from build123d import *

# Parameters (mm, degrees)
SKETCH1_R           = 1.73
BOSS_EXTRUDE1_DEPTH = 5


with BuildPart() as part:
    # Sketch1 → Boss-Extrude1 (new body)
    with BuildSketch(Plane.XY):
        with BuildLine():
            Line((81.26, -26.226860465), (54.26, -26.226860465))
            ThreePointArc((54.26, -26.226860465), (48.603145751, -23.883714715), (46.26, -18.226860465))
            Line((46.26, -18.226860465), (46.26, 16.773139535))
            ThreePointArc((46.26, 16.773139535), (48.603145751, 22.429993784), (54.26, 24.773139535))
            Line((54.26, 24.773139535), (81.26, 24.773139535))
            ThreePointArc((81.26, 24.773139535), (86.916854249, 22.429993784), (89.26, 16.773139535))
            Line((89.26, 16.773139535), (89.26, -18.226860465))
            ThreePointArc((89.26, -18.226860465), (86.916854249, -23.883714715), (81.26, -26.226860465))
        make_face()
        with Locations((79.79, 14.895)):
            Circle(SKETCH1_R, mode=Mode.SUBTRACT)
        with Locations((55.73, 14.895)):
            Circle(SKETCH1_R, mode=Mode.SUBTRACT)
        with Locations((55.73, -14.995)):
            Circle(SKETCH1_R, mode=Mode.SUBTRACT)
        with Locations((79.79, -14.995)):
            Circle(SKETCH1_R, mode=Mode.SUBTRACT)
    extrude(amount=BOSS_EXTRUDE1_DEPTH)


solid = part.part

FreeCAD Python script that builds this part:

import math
import FreeCAD as App
import Part
import Sketcher
Q = App.Units.Quantity

doc = App.newDocument("Part")
body = doc.addObject("PartDesign::Body", "Body")

# Sketch on XY plane
sketch1 = doc.addObject("Sketcher::SketchObject", "Sketch")
body.addObject(sketch1)
sketch1.AttachmentSupport = (doc.XY_Plane, [""])
sketch1.MapMode = "FlatFace"
sketch1.addGeometry([
    Part.LineSegment(App.Vector(54.3, -26.2, 0), App.Vector(81.3, -26.2, 0)),  # 0
    Part.ArcOfCircle(Part.Circle(App.Vector(81.3, -18.2, 0), App.Vector(0, 0, 1), 8), math.radians(-90), math.radians(0)),  # 1
    Part.LineSegment(App.Vector(89.3, -18.2, 0), App.Vector(89.3, 16.8, 0)),  # 2
    Part.ArcOfCircle(Part.Circle(App.Vector(81.3, 16.8, 0), App.Vector(0, 0, 1), 8), math.radians(0), math.radians(90)),  # 3
    Part.LineSegment(App.Vector(81.3, 24.8, 0), App.Vector(54.3, 24.8, 0)),  # 4
    Part.ArcOfCircle(Part.Circle(App.Vector(54.3, 16.8, 0), App.Vector(0, 0, 1), 8), math.radians(90), math.radians(180)),  # 5
    Part.LineSegment(App.Vector(46.3, 16.8, 0), App.Vector(46.3, -18.2, 0)),  # 6
    Part.ArcOfCircle(Part.Circle(App.Vector(54.3, -18.2, 0), App.Vector(0, 0, 1), 8), math.radians(180), math.radians(270)),  # 7
    Part.Circle(App.Vector(79.8, -15, 0), App.Vector(0, 0, 1), 1.7),  # 8
    Part.Circle(App.Vector(55.7, -15, 0), App.Vector(0, 0, 1), 1.7),  # 9
    Part.Circle(App.Vector(79.8, 14.9, 0), App.Vector(0, 0, 1), 1.7),  # 10
    Part.Circle(App.Vector(55.7, 14.9, 0), App.Vector(0, 0, 1), 1.7),  # 11
], False)
sketch1.addConstraint([
    Sketcher.Constraint("Tangent", 0, 2, 1, 1),
    Sketcher.Constraint("Tangent", 1, 2, 2, 1),
    Sketcher.Constraint("Tangent", 2, 2, 3, 1),
    Sketcher.Constraint("Tangent", 3, 2, 4, 1),
    Sketcher.Constraint("Tangent", 4, 2, 5, 1),
    Sketcher.Constraint("Tangent", 5, 2, 6, 1),
    Sketcher.Constraint("Tangent", 6, 2, 7, 1),
    Sketcher.Constraint("Tangent", 7, 2, 0, 1),
    Sketcher.Constraint("Horizontal", 0),
    Sketcher.Constraint("Vertical", 2),
    Sketcher.Constraint("Horizontal", 4),
    Sketcher.Constraint("Vertical", 6),
    Sketcher.Constraint("Equal", 1, 3),
    Sketcher.Constraint("Equal", 3, 5),
    Sketcher.Constraint("Equal", 5, 7),
    Sketcher.Constraint("Equal", 8, 9),
    Sketcher.Constraint("Equal", 9, 10),
    Sketcher.Constraint("Equal", 10, 11),
    Sketcher.Constraint("Horizontal", 8, 3, 9, 3),
    Sketcher.Constraint("Horizontal", 10, 3, 11, 3),
    Sketcher.Constraint("Vertical", 8, 3, 10, 3),
    Sketcher.Constraint("Vertical", 9, 3, 11, 3),
    Sketcher.Constraint("Radius", 1, Q("8 mm")),
    Sketcher.Constraint("Diameter", 8, Q("3.46 mm")),
    Sketcher.Constraint("DistanceX", 0, 1, 0, 2, Q("27 mm")),
    Sketcher.Constraint("DistanceY", 2, 1, 2, 2, Q("35 mm")),
    Sketcher.Constraint("DistanceX", -1, 1, 1, 3, Q("81.26 mm")),
    Sketcher.Constraint("DistanceX", -1, 1, 8, 3, Q("79.79 mm")),
    Sketcher.Constraint("DistanceX", -1, 1, 9, 3, Q("55.73 mm")),
    Sketcher.Constraint("DistanceY", 8, 3, 10, 3, Q("29.89 mm")),
    Sketcher.Constraint("DistanceY", 8, 3, -1, 1, Q("14.995 mm")),
    Sketcher.Constraint("DistanceY", 1, 3, -1, 1, Q("18.22686 mm")),
])
pad1 = doc.addObject("PartDesign::Pad", "Pad")
body.addObject(pad1)
pad1.Profile = sketch1
pad1.Length = 5

doc.recompute()
